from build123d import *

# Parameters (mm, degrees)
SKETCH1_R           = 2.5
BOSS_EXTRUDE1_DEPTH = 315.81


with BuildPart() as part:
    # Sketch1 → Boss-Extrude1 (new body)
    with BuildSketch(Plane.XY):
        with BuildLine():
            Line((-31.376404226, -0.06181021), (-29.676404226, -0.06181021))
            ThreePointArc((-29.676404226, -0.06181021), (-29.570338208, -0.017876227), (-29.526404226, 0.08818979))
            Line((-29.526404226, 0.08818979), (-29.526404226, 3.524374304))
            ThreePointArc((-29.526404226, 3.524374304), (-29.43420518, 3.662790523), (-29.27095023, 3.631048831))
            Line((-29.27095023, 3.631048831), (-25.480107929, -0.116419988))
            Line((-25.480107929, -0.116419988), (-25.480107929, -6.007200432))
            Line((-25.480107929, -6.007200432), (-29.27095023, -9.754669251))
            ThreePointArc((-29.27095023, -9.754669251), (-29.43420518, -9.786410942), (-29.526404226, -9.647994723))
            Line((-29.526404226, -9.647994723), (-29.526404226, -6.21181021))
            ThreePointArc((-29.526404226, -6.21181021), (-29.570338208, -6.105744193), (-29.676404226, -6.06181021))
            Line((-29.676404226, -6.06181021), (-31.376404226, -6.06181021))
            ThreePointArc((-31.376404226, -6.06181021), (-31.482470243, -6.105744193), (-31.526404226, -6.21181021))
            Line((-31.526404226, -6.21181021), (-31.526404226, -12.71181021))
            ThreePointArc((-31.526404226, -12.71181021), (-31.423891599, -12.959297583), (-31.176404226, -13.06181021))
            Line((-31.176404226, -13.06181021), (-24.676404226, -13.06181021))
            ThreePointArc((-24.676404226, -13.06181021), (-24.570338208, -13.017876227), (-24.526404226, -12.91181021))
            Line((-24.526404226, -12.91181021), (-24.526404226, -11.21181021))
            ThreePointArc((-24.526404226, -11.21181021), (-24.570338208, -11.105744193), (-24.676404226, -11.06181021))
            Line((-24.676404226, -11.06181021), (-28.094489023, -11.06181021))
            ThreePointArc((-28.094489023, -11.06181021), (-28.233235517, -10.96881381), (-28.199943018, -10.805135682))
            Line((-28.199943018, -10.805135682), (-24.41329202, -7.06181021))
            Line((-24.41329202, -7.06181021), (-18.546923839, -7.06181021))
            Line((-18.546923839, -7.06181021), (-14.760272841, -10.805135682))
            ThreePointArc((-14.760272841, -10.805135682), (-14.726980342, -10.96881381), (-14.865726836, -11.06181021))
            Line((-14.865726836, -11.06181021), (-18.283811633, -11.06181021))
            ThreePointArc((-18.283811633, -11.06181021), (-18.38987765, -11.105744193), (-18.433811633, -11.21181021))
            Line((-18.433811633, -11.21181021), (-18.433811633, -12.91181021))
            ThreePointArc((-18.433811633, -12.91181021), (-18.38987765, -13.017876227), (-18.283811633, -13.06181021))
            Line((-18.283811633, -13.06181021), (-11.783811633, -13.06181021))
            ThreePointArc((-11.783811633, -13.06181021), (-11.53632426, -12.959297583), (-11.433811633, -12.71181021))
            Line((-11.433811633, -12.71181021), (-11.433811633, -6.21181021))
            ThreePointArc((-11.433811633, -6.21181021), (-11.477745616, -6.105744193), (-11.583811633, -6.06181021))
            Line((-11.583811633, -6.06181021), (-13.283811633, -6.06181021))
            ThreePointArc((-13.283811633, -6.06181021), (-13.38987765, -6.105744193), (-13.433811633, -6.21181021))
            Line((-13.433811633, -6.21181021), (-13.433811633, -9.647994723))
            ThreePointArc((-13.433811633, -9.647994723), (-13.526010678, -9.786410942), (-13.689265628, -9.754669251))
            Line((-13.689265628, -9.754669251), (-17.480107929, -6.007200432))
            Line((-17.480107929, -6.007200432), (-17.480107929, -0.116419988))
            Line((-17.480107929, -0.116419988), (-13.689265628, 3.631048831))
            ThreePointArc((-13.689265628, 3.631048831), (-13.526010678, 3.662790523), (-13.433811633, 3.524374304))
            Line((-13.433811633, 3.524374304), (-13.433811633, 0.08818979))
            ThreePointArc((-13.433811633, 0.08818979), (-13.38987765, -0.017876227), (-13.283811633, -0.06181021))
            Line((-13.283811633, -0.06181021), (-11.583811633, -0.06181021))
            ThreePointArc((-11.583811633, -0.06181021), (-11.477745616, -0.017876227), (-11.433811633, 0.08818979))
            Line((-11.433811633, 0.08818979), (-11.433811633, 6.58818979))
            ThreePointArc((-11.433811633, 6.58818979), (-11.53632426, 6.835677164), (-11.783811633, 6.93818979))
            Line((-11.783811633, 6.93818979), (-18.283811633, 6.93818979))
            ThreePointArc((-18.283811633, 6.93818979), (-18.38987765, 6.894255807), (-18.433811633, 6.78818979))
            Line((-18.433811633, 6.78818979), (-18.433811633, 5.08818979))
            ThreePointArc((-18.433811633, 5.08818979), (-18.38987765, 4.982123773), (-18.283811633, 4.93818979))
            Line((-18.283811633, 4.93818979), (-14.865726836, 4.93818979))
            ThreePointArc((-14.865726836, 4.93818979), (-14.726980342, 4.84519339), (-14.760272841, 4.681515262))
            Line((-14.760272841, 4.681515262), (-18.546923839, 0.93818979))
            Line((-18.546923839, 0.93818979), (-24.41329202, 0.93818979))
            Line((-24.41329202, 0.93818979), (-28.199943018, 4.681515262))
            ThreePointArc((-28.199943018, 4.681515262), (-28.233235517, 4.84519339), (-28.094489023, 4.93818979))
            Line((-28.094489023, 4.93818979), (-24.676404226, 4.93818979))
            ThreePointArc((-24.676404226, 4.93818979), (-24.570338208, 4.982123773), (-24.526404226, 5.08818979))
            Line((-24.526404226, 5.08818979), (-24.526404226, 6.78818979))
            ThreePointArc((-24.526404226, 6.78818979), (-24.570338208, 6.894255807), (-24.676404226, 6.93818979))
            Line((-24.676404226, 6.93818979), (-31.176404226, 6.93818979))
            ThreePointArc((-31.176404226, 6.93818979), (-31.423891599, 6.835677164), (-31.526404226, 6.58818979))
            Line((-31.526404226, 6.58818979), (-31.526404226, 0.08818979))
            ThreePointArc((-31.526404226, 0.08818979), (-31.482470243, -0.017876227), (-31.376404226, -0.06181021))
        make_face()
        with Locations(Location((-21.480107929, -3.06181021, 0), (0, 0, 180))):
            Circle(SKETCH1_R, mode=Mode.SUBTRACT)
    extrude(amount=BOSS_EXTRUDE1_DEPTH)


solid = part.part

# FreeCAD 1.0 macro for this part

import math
import FreeCAD as App
import Part
import Sketcher
from FreeCAD import Vector
Q = App.Units.Quantity

doc = App.newDocument("Part")
body = doc.addObject("PartDesign::Body", "Body")

sketch1 = doc.addObject("Sketcher::SketchObject", "Sketch")
body.addObject(sketch1)
sketch1.AttachmentSupport = (doc.XY_Plane, [""])
sketch1.MapMode = "FlatFace"
sketch1.addGeometry([
    Part.LineSegment(Vector(-31.38, -0.06, 0), Vector(-29.68, -0.06, 0)),
    Part.ArcOfCircle(Part.Circle(Vector(-29.68, 0.09, 0), Vector(0, 0, 1), 0.15), math.radians(-90), math.radians(0)),
    Part.LineSegment(Vector(-29.53, 0.09, 0), Vector(-29.53, 3.52, 0)),
    Part.ArcOfCircle(Part.Circle(Vector(-29.38, 3.52, 0), Vector(0, 0, 1), 0.15), math.radians(45), math.radians(180)),
    Part.LineSegment(Vector(-29.27, 3.63, 0), Vector(-25.48, -0.12, 0)),
    Part.LineSegment(Vector(-25.48, -0.12, 0), Vector(-25.48, -6.01, 0)),
    Part.LineSegment(Vector(-25.48, -6.01, 0), Vector(-29.27, -9.75, 0)),
    Part.ArcOfCircle(Part.Circle(Vector(-29.38, -9.65, 0), Vector(0, 0, 1), 0.15), math.radians(-180), math.radians(-45)),
    Part.LineSegment(Vector(-29.53, -9.65, 0), Vector(-29.53, -6.21, 0)),
    Part.ArcOfCircle(Part.Circle(Vector(-29.68, -6.21, 0), Vector(0, 0, 1), 0.15), math.radians(0), math.radians(90)),
    Part.LineSegment(Vector(-29.68, -6.06, 0), Vector(-31.38, -6.06, 0)),
    Part.ArcOfCircle(Part.Circle(Vector(-31.38, -6.21, 0), Vector(0, 0, 1), 0.15), math.radians(90), math.radians(180)),
    Part.LineSegment(Vector(-31.53, -6.21, 0), Vector(-31.53, -12.71, 0)),
    Part.ArcOfCircle(Part.Circle(Vector(-31.18, -12.71, 0), Vector(0, 0, 1), 0.35), math.radians(-180), math.radians(-90)),
    Part.LineSegment(Vector(-31.18, -13.06, 0), Vector(-24.68, -13.06, 0)),
    Part.ArcOfCircle(Part.Circle(Vector(-24.68, -12.91, 0), Vector(0, 0, 1), 0.15), math.radians(-90), math.radians(0)),
    Part.LineSegment(Vector(-24.53, -12.91, 0), Vector(-24.53, -11.21, 0)),
    Part.ArcOfCircle(Part.Circle(Vector(-24.68, -11.21, 0), Vector(0, 0, 1), 0.15), math.radians(0), math.radians(90)),
    Part.LineSegment(Vector(-24.68, -11.06, 0), Vector(-28.09, -11.06, 0)),
    Part.ArcOfCircle(Part.Circle(Vector(-28.09, -10.91, 0), Vector(0, 0, 1), 0.15), math.radians(135), math.radians(270)),
    Part.LineSegment(Vector(-28.2, -10.81, 0), Vector(-24.41, -7.06, 0)),
    Part.LineSegment(Vector(-24.41, -7.06, 0), Vector(-18.55, -7.06, 0)),
    Part.LineSegment(Vector(-18.55, -7.06, 0), Vector(-14.76, -10.81, 0)),
    Part.ArcOfCircle(Part.Circle(Vector(-14.87, -10.91, 0), Vector(0, 0, 1), 0.15), math.radians(-90), math.radians(45)),
    Part.LineSegment(Vector(-14.87, -11.06, 0), Vector(-18.28, -11.06, 0)),
    Part.ArcOfCircle(Part.Circle(Vector(-18.28, -11.21, 0), Vector(0, 0, 1), 0.15), math.radians(90), math.radians(180)),
    Part.LineSegment(Vector(-18.43, -11.21, 0), Vector(-18.43, -12.91, 0)),
    Part.ArcOfCircle(Part.Circle(Vector(-18.28, -12.91, 0), Vector(0, 0, 1), 0.15), math.radians(-180), math.radians(-90)),
    Part.LineSegment(Vector(-18.28, -13.06, 0), Vector(-11.78, -13.06, 0)),
    Part.ArcOfCircle(Part.Circle(Vector(-11.78, -12.71, 0), Vector(0, 0, 1), 0.35), math.radians(-90), math.radians(0)),
    Part.LineSegment(Vector(-11.43, -12.71, 0), Vector(-11.43, -6.21, 0)),
    Part.ArcOfCircle(Part.Circle(Vector(-11.58, -6.21, 0), Vector(0, 0, 1), 0.15), math.radians(0), math.radians(90)),
    Part.LineSegment(Vector(-11.58, -6.06, 0), Vector(-13.28, -6.06, 0)),
    Part.ArcOfCircle(Part.Circle(Vector(-13.28, -6.21, 0), Vector(0, 0, 1), 0.15), math.radians(90), math.radians(180)),
    Part.LineSegment(Vector(-13.43, -6.21, 0), Vector(-13.43, -9.65, 0)),
    Part.ArcOfCircle(Part.Circle(Vector(-13.58, -9.65, 0), Vector(0, 0, 1), 0.15), math.radians(-135), math.radians(0)),
    Part.LineSegment(Vector(-13.69, -9.75, 0), Vector(-17.48, -6.01, 0)),
    Part.LineSegment(Vector(-17.48, -6.01, 0), Vector(-17.48, -0.12, 0)),
    Part.LineSegment(Vector(-17.48, -0.12, 0), Vector(-13.69, 3.63, 0)),
    Part.ArcOfCircle(Part.Circle(Vector(-13.58, 3.52, 0), Vector(0, 0, 1), 0.15), math.radians(0), math.radians(135)),
    Part.LineSegment(Vector(-13.43, 3.52, 0), Vector(-13.43, 0.09, 0)),
    Part.ArcOfCircle(Part.Circle(Vector(-13.28, 0.09, 0), Vector(0, 0, 1), 0.15), math.radians(-180), math.radians(-90)),
    Part.LineSegment(Vector(-13.28, -0.06, 0), Vector(-11.58, -0.06, 0)),
    Part.ArcOfCircle(Part.Circle(Vector(-11.58, 0.09, 0), Vector(0, 0, 1), 0.15), math.radians(-90), math.radians(0)),
    Part.LineSegment(Vector(-11.43, 0.09, 0), Vector(-11.43, 6.59, 0)),
    Part.ArcOfCircle(Part.Circle(Vector(-11.78, 6.59, 0), Vector(0, 0, 1), 0.35), math.radians(0), math.radians(90)),
    Part.LineSegment(Vector(-11.78, 6.94, 0), Vector(-18.28, 6.94, 0)),
    Part.ArcOfCircle(Part.Circle(Vector(-18.28, 6.79, 0), Vector(0, 0, 1), 0.15), math.radians(90), math.radians(180)),
    Part.LineSegment(Vector(-18.43, 6.79, 0), Vector(-18.43, 5.09, 0)),
    Part.ArcOfCircle(Part.Circle(Vector(-18.28, 5.09, 0), Vector(0, 0, 1), 0.15), math.radians(-180), math.radians(-90)),
    Part.LineSegment(Vector(-18.28, 4.94, 0), Vector(-14.87, 4.94, 0)),
    Part.ArcOfCircle(Part.Circle(Vector(-14.87, 4.79, 0), Vector(0, 0, 1), 0.15), math.radians(-45), math.radians(90)),
    Part.LineSegment(Vector(-14.76, 4.68, 0), Vector(-18.55, 0.94, 0)),
    Part.LineSegment(Vector(-18.55, 0.94, 0), Vector(-24.41, 0.94, 0)),
    Part.LineSegment(Vector(-24.41, 0.94, 0), Vector(-28.2, 4.68, 0)),
    Part.ArcOfCircle(Part.Circle(Vector(-28.09, 4.79, 0), Vector(0, 0, 1), 0.15), math.radians(90), math.radians(225)),
    Part.LineSegment(Vector(-28.09, 4.94, 0), Vector(-24.68, 4.94, 0)),
    Part.ArcOfCircle(Part.Circle(Vector(-24.68, 5.09, 0), Vector(0, 0, 1), 0.15), math.radians(-90), math.radians(0)),
    Part.LineSegment(Vector(-24.53, 5.09, 0), Vector(-24.53, 6.79, 0)),
    Part.ArcOfCircle(Part.Circle(Vector(-24.68, 6.79, 0), Vector(0, 0, 1), 0.15), math.radians(0), math.radians(90)),
    Part.LineSegment(Vector(-24.68, 6.94, 0), Vector(-31.18, 6.94, 0)),
    Part.ArcOfCircle(Part.Circle(Vector(-31.18, 6.59, 0), Vector(0, 0, 1), 0.35), math.radians(90), math.radians(180)),
    Part.LineSegment(Vector(-31.53, 6.59, 0), Vector(-31.53, 0.09, 0)),
    Part.ArcOfCircle(Part.Circle(Vector(-31.38, 0.09, 0), Vector(0, 0, 1), 0.15), math.radians(-180), math.radians(-90)),
    Part.Circle(Vector(-21.48, -3.06, 0), Vector(0, 0, 1), 2.5),
], False)
sketch1.addConstraint([
    Sketcher.Constraint("Tangent", 0, 2, 1, 1),
    Sketcher.Constraint("Tangent", 1, 2, 2, 1),
    Sketcher.Constraint("Tangent", 2, 2, 3, 2),
    Sketcher.Constraint("Tangent", 3, 1, 4, 1),
    Sketcher.Constraint("Coincident", 4, 2, 5, 1),
    Sketcher.Constraint("Coincident", 5, 2, 6, 1),
    Sketcher.Constraint("Tangent", 6, 2, 7, 2),
    Sketcher.Constraint("Tangent", 7, 1, 8, 1),
    Sketcher.Constraint("Tangent", 8, 2, 9, 1),
    Sketcher.Constraint("Tangent", 9, 2, 10, 1),
    Sketcher.Constraint("Tangent", 10, 2, 11, 1),
    Sketcher.Constraint("Tangent", 11, 2, 12, 1),
    Sketcher.Constraint("Tangent", 12, 2, 13, 1),
    Sketcher.Constraint("Tangent", 13, 2, 14, 1),
    Sketcher.Constraint("Tangent", 14, 2, 15, 1),
    Sketcher.Constraint("Tangent", 15, 2, 16, 1),
    Sketcher.Constraint("Tangent", 16, 2, 17, 1),
    Sketcher.Constraint("Tangent", 17, 2, 18, 1),
    Sketcher.Constraint("Tangent", 18, 2, 19, 2),
    Sketcher.Constraint("Tangent", 19, 1, 20, 1),
    Sketcher.Constraint("Coincident", 20, 2, 21, 1),
    Sketcher.Constraint("Coincident", 21, 2, 22, 1),
    Sketcher.Constraint("Tangent", 22, 2, 23, 2),
    Sketcher.Constraint("Tangent", 23, 1, 24, 1),
    Sketcher.Constraint("Tangent", 24, 2, 25, 1),
    Sketcher.Constraint("Tangent", 25, 2, 26, 1),
    Sketcher.Constraint("Tangent", 26, 2, 27, 1),
    Sketcher.Constraint("Tangent", 27, 2, 28, 1),
    Sketcher.Constraint("Tangent", 28, 2, 29, 1),
    Sketcher.Constraint("Tangent", 29, 2, 30, 1),
    Sketcher.Constraint("Tangent", 30, 2, 31, 1),
    Sketcher.Constraint("Tangent", 31, 2, 32, 1),
    Sketcher.Constraint("Tangent", 32, 2, 33, 1),
    Sketcher.Constraint("Tangent", 33, 2, 34, 1),
    Sketcher.Constraint("Tangent", 34, 2, 35, 2),
    Sketcher.Constraint("Tangent", 35, 1, 36, 1),
    Sketcher.Constraint("Coincident", 36, 2, 37, 1),
    Sketcher.Constraint("Coincident", 37, 2, 38, 1),
    Sketcher.Constraint("Tangent", 38, 2, 39, 2),
    Sketcher.Constraint("Tangent", 39, 1, 40, 1),
    Sketcher.Constraint("Tangent", 40, 2, 41, 1),
    Sketcher.Constraint("Tangent", 41, 2, 42, 1),
    Sketcher.Constraint("Tangent", 42, 2, 43, 1),
    Sketcher.Constraint("Tangent", 43, 2, 44, 1),
    Sketcher.Constraint("Tangent", 44, 2, 45, 1),
    Sketcher.Constraint("Tangent", 45, 2, 46, 1),
    Sketcher.Constraint("Tangent", 46, 2, 47, 1),
    Sketcher.Constraint("Tangent", 47, 2, 48, 1),
    Sketcher.Constraint("Tangent", 48, 2, 49, 1),
    Sketcher.Constraint("Tangent", 49, 2, 50, 1),
    Sketcher.Constraint("Tangent", 50, 2, 51, 2),
    Sketcher.Constraint("Tangent", 51, 1, 52, 1),
    Sketcher.Constraint("Coincident", 52, 2, 53, 1),
    Sketcher.Constraint("Coincident", 53, 2, 54, 1),
    Sketcher.Constraint("Tangent", 54, 2, 55, 2),
    Sketcher.Constraint("Tangent", 55, 1, 56, 1),
    Sketcher.Constraint("Tangent", 56, 2, 57, 1),
    Sketcher.Constraint("Tangent", 57, 2, 58, 1),
    Sketcher.Constraint("Tangent", 58, 2, 59, 1),
    Sketcher.Constraint("Tangent", 59, 2, 60, 1),
    Sketcher.Constraint("Tangent", 60, 2, 61, 1),
    Sketcher.Constraint("Tangent", 61, 2, 62, 1),
    Sketcher.Constraint("Tangent", 62, 2, 63, 1),
    Sketcher.Constraint("Tangent", 63, 2, 0, 1),
    Sketcher.Constraint("Horizontal", 0),
    Sketcher.Constraint("Vertical", 2),
    Sketcher.Constraint("Vertical", 5),
    Sketcher.Constraint("Vertical", 8),
    Sketcher.Constraint("Horizontal", 10),
    Sketcher.Constraint("Vertical", 12),
    Sketcher.Constraint("Horizontal", 14),
    Sketcher.Constraint("Vertical", 16),
    Sketcher.Constraint("Horizontal", 18),
    Sketcher.Constraint("Horizontal", 21),
    Sketcher.Constraint("Horizontal", 24),
    Sketcher.Constraint("Vertical", 26),
    Sketcher.Constraint("Horizontal", 28),
    Sketcher.Constraint("Vertical", 30),
    Sketcher.Constraint("Horizontal", 32),
    Sketcher.Constraint("Vertical", 34),
    Sketcher.Constraint("Vertical", 37),
    Sketcher.Constraint("Vertical", 40),
    Sketcher.Constraint("Horizontal", 42),
    Sketcher.Constraint("Vertical", 44),
    Sketcher.Constraint("Horizontal", 46),
    Sketcher.Constraint("Vertical", 48),
    Sketcher.Constraint("Horizontal", 50),
    Sketcher.Constraint("Horizontal", 53),
    Sketcher.Constraint("Horizontal", 56),
    Sketcher.Constraint("Vertical", 58),
    Sketcher.Constraint("Horizontal", 60),
    Sketcher.Constraint("Vertical", 62),
    Sketcher.Constraint("Equal", 1, 3),
    Sketcher.Constraint("Equal", 3, 7),
    Sketcher.Constraint("Equal", 7, 9),
    Sketcher.Constraint("Equal", 9, 11),
    Sketcher.Constraint("Equal", 11, 15),
    Sketcher.Constraint("Equal", 15, 17),
    Sketcher.Constraint("Equal", 17, 19),
    Sketcher.Constraint("Equal", 19, 23),
    Sketcher.Constraint("Equal", 23, 25),
    Sketcher.Constraint("Equal", 25, 27),
    Sketcher.Constraint("Equal", 13, 29),
    Sketcher.Constraint("Equal", 27, 31),
    Sketcher.Constraint("Equal", 31, 33),
    Sketcher.Constraint("Equal", 33, 35),
    Sketcher.Constraint("Equal", 35, 39),
    Sketcher.Constraint("Equal", 39, 41),
    Sketcher.Constraint("Equal", 41, 43),
    Sketcher.Constraint("Equal", 29, 45),
    Sketcher.Constraint("Equal", 43, 47),
    Sketcher.Constraint("Equal", 47, 49),
    Sketcher.Constraint("Equal", 49, 51),
    Sketcher.Constraint("Equal", 51, 55),
    Sketcher.Constraint("Equal", 55, 57),
    Sketcher.Constraint("Equal", 57, 59),
    Sketcher.Constraint("Equal", 45, 61),
    Sketcher.Constraint("Equal", 59, 63),
    Sketcher.Constraint("Parallel", 6, 20),
    Sketcher.Constraint("Parallel", 4, 22),
    Sketcher.Constraint("Parallel", 22, 36),
    Sketcher.Constraint("Parallel", 20, 38),
    Sketcher.Constraint("Parallel", 38, 52),
    Sketcher.Constraint("Parallel", 36, 54),
    Sketcher.Constraint("Horizontal", 19, 3, 23, 3),
    Sketcher.Constraint("Horizontal", 15, 3, 27, 3),
    Sketcher.Constraint("Horizontal", 11, 3, 31, 3),
    Sketcher.Constraint("Horizontal", 7, 3, 35, 3),
    Sketcher.Constraint("Horizontal", 3, 3, 39, 3),
    Sketcher.Constraint("Horizontal", 1, 3, 41, 3),
    Sketcher.Constraint("Horizontal", 51, 3, 55, 3),
    Sketcher.Constraint("Horizontal", 47, 3, 59, 3),
    Sketcher.Constraint("Horizontal", 19, 1, 22, 2),
    Sketcher.Constraint("Horizontal", 5, 2, 36, 2),
    Sketcher.Constraint("Horizontal", 4, 2, 37, 2),
    Sketcher.Constraint("Vertical", 3, 3, 7, 3),
    Sketcher.Constraint("Vertical", 31, 3, 43, 3),
    Sketcher.Constraint("Vertical", 27, 3, 47, 3),
    Sketcher.Constraint("Vertical", 23, 3, 51, 3),
    Sketcher.Constraint("Vertical", 19, 3, 55, 3),
    Sketcher.Constraint("Vertical", 17, 3, 57, 3),
    Sketcher.Constraint("Vertical", 13, 3, 61, 3),
    Sketcher.Constraint("Vertical", 21, 2, 52, 2),
    Sketcher.Constraint("Equal", 18, 24),
    Sketcher.Constraint("Equal", 14, 28),
    Sketcher.Constraint("Equal", 10, 32),
    Sketcher.Constraint("Equal", 2, 8),
    Sketcher.Constraint("Equal", 60, 12),
    Sketcher.Constraint("Equal", 42, 16),
    Sketcher.Constraint("Equal", 30, 44),
    Sketcher.Constraint("Equal", 26, 48),
    Sketcher.Constraint("Diameter", 64, Q("5 mm")),
    Sketcher.Constraint("Radius", 1, Q("0.15 mm")),
    Sketcher.Constraint("Radius", 13, Q("0.35 mm")),
    Sketcher.Constraint("DistanceX", 0, 1, 0, 2, Q("1.7 mm")),
    Sketcher.Constraint("DistanceX", 14, 1, 14, 2, Q("6.5 mm")),
    Sketcher.Constraint("DistanceX", 21, 1, 21, 2, Q("5.866368 mm")),
    Sketcher.Constraint("DistanceY", 5, 2, 5, 1, Q("5.89078 mm")),
    Sketcher.Constraint("DistanceY", 5, 2, -1, 1, Q("6.0072 mm")),
    Sketcher.Constraint("Distance", 4, Q("5.330479 mm")),
    Sketcher.Constraint("DistanceX", 18, 2, 18, 1, Q("3.418085 mm")),
    Sketcher.Constraint("DistanceY", 2, 1, 2, 2, Q("3.436185 mm")),
    Sketcher.Constraint("DistanceY", -1, 1, 1, 3, Q("0.08819 mm")),
    Sketcher.Constraint("DistanceX", 19, 3, -1, 1, Q("28.094489 mm")),
    Sketcher.Constraint("DistanceX", 25, 3, -1, 1, Q("18.283812 mm")),
    Sketcher.Constraint("DistanceY", 64, 3, -1, 1, Q("3.06181 mm")),
    Sketcher.Constraint("DistanceX", 64, 3, -1, 1, Q("21.480108 mm")),
])
pad1 = doc.addObject("PartDesign::Pad", "Pad")
body.addObject(pad1)
pad1.Profile = sketch1
pad1.Length = 315.81

doc.recompute()
